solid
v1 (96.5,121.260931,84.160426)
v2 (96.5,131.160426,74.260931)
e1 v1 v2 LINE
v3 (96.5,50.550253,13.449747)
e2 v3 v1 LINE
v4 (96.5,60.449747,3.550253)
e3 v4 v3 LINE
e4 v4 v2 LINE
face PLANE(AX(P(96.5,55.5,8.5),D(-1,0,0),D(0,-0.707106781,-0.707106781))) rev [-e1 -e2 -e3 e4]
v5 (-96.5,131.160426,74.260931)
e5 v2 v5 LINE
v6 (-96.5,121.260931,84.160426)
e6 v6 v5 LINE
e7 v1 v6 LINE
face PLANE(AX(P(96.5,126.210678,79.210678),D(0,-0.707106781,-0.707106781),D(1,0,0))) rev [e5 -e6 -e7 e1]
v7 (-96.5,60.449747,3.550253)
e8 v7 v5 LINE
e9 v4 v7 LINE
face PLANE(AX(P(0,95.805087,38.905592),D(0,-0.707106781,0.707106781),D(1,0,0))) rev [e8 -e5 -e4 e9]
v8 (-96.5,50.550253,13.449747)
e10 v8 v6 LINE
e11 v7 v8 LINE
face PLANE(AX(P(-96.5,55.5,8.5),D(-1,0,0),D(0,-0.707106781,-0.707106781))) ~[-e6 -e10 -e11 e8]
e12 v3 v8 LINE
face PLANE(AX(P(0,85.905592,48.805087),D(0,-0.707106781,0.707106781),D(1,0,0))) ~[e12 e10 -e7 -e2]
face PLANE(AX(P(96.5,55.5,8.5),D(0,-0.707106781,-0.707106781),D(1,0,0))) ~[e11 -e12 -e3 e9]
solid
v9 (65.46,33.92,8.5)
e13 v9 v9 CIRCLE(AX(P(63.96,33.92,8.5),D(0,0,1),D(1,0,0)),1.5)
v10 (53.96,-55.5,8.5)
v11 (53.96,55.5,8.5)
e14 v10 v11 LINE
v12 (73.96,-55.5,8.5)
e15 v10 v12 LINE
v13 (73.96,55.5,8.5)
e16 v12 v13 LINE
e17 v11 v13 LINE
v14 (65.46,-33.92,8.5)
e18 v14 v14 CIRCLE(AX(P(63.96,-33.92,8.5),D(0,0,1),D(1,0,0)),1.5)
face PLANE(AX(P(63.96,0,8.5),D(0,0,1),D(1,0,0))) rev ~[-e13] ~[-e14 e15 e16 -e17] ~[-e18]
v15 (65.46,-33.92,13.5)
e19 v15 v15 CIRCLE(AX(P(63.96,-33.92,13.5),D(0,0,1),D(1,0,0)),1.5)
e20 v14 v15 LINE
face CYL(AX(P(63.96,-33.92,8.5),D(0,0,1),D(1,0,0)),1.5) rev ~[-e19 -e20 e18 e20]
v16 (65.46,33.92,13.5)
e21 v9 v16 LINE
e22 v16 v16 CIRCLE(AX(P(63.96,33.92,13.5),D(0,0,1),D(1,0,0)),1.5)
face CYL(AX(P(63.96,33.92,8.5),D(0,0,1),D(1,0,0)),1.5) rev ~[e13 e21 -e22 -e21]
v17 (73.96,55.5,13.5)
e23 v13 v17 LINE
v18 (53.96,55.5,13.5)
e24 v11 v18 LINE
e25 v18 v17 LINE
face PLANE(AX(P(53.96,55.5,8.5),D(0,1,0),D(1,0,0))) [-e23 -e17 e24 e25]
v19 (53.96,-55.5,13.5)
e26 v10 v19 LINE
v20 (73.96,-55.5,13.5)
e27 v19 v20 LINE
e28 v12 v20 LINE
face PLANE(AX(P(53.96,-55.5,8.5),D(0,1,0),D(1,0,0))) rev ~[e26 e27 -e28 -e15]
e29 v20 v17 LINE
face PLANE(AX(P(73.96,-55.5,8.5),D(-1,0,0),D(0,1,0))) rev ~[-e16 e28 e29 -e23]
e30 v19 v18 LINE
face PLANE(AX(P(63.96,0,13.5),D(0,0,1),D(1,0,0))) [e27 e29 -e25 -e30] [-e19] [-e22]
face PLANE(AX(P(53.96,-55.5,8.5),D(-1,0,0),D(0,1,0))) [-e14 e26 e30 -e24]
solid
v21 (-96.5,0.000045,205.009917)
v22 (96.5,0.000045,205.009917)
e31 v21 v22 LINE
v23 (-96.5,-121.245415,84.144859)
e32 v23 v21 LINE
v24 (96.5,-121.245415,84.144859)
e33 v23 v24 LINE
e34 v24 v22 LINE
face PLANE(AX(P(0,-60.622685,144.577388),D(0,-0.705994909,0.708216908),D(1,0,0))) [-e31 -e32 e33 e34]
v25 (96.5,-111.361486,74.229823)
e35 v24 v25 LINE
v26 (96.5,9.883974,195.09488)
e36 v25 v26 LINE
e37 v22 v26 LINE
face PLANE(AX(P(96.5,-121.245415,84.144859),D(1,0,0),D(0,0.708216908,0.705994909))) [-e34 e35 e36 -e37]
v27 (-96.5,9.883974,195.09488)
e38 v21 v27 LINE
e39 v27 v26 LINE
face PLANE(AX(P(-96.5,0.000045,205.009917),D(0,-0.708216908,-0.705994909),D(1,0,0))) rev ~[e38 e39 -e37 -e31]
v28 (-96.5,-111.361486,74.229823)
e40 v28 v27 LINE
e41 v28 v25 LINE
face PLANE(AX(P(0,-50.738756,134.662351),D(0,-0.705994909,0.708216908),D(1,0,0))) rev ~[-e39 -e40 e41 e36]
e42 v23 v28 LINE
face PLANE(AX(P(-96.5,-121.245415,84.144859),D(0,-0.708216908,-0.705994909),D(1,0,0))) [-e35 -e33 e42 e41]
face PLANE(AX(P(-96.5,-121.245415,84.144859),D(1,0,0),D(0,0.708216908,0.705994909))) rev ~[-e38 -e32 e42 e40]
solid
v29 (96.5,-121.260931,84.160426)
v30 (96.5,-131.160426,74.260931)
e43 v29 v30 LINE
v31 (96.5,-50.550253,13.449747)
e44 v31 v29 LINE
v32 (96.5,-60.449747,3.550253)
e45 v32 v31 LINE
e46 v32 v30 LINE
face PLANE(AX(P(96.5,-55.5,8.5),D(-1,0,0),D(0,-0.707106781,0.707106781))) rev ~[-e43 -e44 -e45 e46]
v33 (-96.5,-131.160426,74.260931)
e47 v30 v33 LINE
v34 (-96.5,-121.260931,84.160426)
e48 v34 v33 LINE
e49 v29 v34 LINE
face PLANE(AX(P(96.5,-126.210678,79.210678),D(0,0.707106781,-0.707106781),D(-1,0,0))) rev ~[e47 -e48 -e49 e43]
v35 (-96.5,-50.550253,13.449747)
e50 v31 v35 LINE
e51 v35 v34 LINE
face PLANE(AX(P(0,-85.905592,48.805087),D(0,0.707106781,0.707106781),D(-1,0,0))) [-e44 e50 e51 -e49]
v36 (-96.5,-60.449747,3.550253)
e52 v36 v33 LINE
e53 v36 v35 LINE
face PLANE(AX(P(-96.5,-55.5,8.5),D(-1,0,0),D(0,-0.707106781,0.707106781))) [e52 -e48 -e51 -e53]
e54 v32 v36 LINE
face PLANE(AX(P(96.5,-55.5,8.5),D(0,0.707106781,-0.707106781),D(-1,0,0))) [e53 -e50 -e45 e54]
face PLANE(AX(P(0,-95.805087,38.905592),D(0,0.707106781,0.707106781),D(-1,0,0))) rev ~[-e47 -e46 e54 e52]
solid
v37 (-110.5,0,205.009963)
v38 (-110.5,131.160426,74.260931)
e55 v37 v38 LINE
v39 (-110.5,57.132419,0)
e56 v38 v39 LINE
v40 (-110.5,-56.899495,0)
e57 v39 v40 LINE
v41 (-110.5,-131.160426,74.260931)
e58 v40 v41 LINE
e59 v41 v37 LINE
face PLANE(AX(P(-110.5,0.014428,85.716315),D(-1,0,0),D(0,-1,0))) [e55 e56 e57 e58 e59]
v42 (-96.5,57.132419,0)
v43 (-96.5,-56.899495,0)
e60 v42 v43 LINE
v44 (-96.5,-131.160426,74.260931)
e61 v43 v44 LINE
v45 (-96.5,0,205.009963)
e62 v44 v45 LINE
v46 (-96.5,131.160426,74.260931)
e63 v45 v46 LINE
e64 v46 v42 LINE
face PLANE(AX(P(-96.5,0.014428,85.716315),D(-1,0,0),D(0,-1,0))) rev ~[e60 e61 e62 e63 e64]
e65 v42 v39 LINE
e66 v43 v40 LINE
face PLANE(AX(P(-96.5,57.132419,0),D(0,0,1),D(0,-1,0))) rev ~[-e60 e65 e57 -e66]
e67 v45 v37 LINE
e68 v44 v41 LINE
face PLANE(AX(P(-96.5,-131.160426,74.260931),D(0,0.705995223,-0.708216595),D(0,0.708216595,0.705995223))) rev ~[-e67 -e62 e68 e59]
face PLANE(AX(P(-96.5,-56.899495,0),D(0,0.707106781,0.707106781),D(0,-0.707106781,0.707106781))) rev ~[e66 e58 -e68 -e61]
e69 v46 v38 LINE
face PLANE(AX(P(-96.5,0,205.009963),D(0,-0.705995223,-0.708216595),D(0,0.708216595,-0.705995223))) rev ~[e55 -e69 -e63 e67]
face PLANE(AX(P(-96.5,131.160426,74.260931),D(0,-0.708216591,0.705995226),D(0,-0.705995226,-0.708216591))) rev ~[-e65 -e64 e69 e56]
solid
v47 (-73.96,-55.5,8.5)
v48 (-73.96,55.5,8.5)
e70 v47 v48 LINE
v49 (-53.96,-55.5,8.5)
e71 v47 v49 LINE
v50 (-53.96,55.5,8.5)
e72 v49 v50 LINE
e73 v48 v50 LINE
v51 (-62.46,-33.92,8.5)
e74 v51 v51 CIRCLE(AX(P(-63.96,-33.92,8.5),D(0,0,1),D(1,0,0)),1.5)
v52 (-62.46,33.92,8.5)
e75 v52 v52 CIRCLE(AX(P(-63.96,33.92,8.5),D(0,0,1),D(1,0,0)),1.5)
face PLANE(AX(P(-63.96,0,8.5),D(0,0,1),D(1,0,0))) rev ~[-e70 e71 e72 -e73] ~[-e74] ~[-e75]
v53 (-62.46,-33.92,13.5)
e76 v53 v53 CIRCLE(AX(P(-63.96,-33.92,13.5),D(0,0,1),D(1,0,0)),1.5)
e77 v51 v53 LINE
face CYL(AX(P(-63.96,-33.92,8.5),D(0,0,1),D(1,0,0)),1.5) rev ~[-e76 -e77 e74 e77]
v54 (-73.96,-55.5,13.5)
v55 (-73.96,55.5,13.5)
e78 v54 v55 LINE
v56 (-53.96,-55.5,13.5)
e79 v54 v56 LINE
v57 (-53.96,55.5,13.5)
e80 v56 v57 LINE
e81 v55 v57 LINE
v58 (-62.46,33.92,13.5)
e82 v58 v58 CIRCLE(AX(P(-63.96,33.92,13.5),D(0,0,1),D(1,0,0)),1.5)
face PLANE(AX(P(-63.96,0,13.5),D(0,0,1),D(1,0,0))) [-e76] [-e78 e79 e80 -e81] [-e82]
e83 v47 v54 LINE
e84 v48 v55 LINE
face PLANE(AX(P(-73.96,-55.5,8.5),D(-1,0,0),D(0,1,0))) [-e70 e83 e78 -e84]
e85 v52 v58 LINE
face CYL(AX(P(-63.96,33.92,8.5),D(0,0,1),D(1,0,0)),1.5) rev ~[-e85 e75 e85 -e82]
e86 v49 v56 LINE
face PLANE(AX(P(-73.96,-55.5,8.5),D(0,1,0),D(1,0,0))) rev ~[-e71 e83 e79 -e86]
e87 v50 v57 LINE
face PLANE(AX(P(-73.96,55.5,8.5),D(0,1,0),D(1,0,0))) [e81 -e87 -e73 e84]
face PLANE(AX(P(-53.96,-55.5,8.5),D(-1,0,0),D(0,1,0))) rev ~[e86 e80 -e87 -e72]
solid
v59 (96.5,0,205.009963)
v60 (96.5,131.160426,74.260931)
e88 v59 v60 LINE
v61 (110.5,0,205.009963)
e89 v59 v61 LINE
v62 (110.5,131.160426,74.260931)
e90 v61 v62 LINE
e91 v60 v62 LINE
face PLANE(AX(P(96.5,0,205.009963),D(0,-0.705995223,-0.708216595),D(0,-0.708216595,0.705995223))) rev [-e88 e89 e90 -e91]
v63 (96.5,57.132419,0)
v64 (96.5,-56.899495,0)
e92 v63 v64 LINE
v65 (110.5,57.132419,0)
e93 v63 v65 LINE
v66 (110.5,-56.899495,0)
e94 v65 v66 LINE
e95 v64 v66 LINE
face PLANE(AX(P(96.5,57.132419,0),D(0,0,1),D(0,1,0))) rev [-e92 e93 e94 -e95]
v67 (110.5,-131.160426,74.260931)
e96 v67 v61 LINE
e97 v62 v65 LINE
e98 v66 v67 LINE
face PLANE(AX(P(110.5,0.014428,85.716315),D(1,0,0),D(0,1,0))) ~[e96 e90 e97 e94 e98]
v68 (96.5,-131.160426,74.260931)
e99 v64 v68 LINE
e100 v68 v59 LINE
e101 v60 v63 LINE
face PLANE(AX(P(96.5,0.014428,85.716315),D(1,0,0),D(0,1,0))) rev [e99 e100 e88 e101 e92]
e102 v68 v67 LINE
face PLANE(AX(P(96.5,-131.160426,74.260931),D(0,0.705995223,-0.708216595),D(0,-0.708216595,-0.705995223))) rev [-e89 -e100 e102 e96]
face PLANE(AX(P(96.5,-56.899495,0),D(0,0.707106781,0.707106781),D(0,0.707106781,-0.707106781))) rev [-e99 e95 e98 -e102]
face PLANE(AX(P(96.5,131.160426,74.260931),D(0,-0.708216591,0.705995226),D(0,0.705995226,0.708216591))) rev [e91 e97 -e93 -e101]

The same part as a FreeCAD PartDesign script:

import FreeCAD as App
import Part
import Sketcher
from FreeCAD import Vector
Q = App.Units.Quantity


def add_polygon(sketch, points):
    """Adds a closed chain of lines whose ends are joined by coincident constraints."""
    first, n = sketch.GeometryCount, len(points)
    for a, b in zip(points, points[1:] + points[:1]):
        sketch.addGeometry(Part.LineSegment(App.Vector(*a, 0), App.Vector(*b, 0)), False)
    for i in range(n):
        sketch.addConstraint(Sketcher.Constraint("Coincident", first + i, 2, first + (i + 1) % n, 1))

doc = App.newDocument("Part")
body = doc.addObject("PartDesign::Body", "Body")

# Sketch on XY plane
sketch1 = body.newObject("Sketcher::SketchObject", "Sketch")
sketch1.AttachmentSupport = (doc.getObject("XY_Plane"), [""])
sketch1.MapMode = "FlatFace"
add_polygon(sketch1, [(-96.5, 55.5), (-96.5, -55.5), (96.5, -55.5), (96.5, 55.5)])  # lines 0-3
sketch1.addConstraint([
    Sketcher.Constraint("Vertical", 0),
    Sketcher.Constraint("Horizontal", 1),
    Sketcher.Constraint("Vertical", 2),
    Sketcher.Constraint("Horizontal", 3),
    Sketcher.Constraint("Symmetric", 0, 2, 2, 2, -1, 1),
    Sketcher.Constraint("DistanceX", 1, 1, 1, 2, 193.0),
    Sketcher.Constraint("DistanceY", 0, 2, 0, 1, 111.0),
])
pad1 = body.newObject("PartDesign::Pad", "Pad")
pad1.Profile = sketch1
pad1.Length = 8.5
body2 = doc.addObject("PartDesign::Body", "Body001")
body2.AllowCompound = True

# Sketch on XY plane
sketch2 = body2.newObject("Sketcher::SketchObject", "Sketch001")
sketch2.AttachmentSupport = (doc.getObject("XY_Plane001"), [""])
sketch2.MapMode = "FlatFace"
sketch2.AttachmentOffset = App.Placement(Vector(0, 0, 8.5), App.Rotation())
add_polygon(sketch2, [(-73.96, 55.5), (-73.96, -55.5), (-53.96, -55.5), (-53.96, 55.5)])  # lines 0-3
add_polygon(sketch2, [(53.96, 55.5), (53.96, -55.5), (73.96, -55.5), (73.96, 55.5)])  # lines 4-7
sketch2.addConstraint([
    Sketcher.Constraint("Vertical", 0),
    Sketcher.Constraint("Horizontal", 1),
    Sketcher.Constraint("Vertical", 2),
    Sketcher.Constraint("Horizontal", 3),
    Sketcher.Constraint("Vertical", 4),
    Sketcher.Constraint("Horizontal", 5),
    Sketcher.Constraint("Vertical", 6),
    Sketcher.Constraint("Horizontal", 7),
    Sketcher.Constraint("Symmetric", 2, 2, 4, 2, -1, 1),
    Sketcher.Constraint("Symmetric", 0, 2, 6, 2, -1, 1),
    Sketcher.Constraint("Horizontal", 1, 2, 4, 2),
    Sketcher.Constraint("DistanceX", 1, 1, 1, 2, 20.0),
    Sketcher.Constraint("DistanceY", 0, 2, 0, 1, 111.0),
    Sketcher.Constraint("DistanceX", 0, 2, -1, 1, 73.96),
])
pad2 = body2.newObject("PartDesign::Pad", "Pad001")
pad2.Profile = sketch2
pad2.Length = 5
body3 = doc.addObject("PartDesign::Body", "Body002")
body3.AllowCompound = True

# Sketch on XY plane
sketch3 = body3.newObject("Sketcher::SketchObject", "Sketch002")
sketch3.AttachmentSupport = (doc.getObject("XY_Plane002"), [""])
sketch3.MapMode = "FlatFace"
sketch3.AttachmentOffset = App.Placement(Vector(0, 0, 8.5), App.Rotation())
sketch3.addGeometry([
    Part.Circle(Vector(-63.96, 33.92, 0), Vector(0, 0, 1), 1.5),
    Part.Circle(Vector(63.96, 33.92, 0), Vector(0, 0, 1), 1.5),
    Part.Circle(Vector(-63.96, -33.92, 0), Vector(0, 0, 1), 1.5),
    Part.Circle(Vector(63.96, -33.92, 0), Vector(0, 0, 1), 1.5),
], False)
sketch3.addConstraint([
    Sketcher.Constraint("Equal", 0, 1),
    Sketcher.Constraint("Equal", 1, 2),
    Sketcher.Constraint("Equal", 2, 3),
    Sketcher.Constraint("Symmetric", 1, 3, 2, 3, -1, 1),
    Sketcher.Constraint("Symmetric", 0, 3, 3, 3, -1, 1),
    Sketcher.Constraint("Symmetric", 0, 3, 1, 3, -2),
    Sketcher.Constraint("Diameter", 0, 3.0),
    Sketcher.Constraint("DistanceX", 0, 3, -1, 1, 63.96),
    Sketcher.Constraint("DistanceY", -1, 1, 0, 3, 33.92),
])
pad3 = body3.newObject("PartDesign::Pad", "Pad002")
pad3.Profile = sketch3
pad3.Type = "TwoLengths"
pad3.Length = 5.001
pad3.Length2 = 2.5
doc.recompute()

body4 = doc.addObject("PartDesign::Body", "Body003")
body4.BaseFeature = body3
boolean = body.newObject("PartDesign::Boolean", "Boolean")
boolean.Type = "Cut"
boolean.addObjects([body4])
doc.recompute()
body2.AllowCompound = True
doc.recompute()

boolean2 = body2.newObject("PartDesign::Boolean", "Boolean001")
boolean2.Type = "Cut"
boolean2.addObjects([body3])
body5 = doc.addObject("PartDesign::Body", "Body004")

# Sketch on an angled plane
sketch4 = body5.newObject("Sketcher::SketchObject", "Sketch003")
sketch4.Placement = App.Placement(Vector(0, -23.5, -23.5), App.Rotation(Vector(-1, 0, 0), Vector(0, -0.707106781, 0.707106781), Vector(0, 0.707106781, 0.707106781), "ZXY"))
add_polygon(sketch4, [(-96.5, 145.254834), (-96.5, 45.254834), (96.5, 45.254834), (96.5, 145.254834)])  # lines 0-3
sketch4.addConstraint([
    Sketcher.Constraint("Vertical", 0),
    Sketcher.Constraint("Horizontal", 1),
    Sketcher.Constraint("Vertical", 2),
    Sketcher.Constraint("Horizontal", 3),
    Sketcher.Constraint("DistanceX", 1, 1, 1, 2, 193.0),
    Sketcher.Constraint("DistanceY", 0, 2, 0, 1, 100.0),
    Sketcher.Constraint("DistanceX", 0, 2, -1, 1, 96.5),
    Sketcher.Constraint("DistanceY", -1, 1, 0, 2, 45.254834),
])
pad4 = body5.newObject("PartDesign::Pad", "Pad003")
pad4.Profile = sketch4
pad4.Length = 14
pad4.Midplane = True
body6 = doc.addObject("PartDesign::Body", "Body005")
doc.recompute()

mirroring = doc.addObject("Part::Mirroring", "Mirroring")
mirroring.Source = body5
mirroring.Base = Vector(0, 0, 0)
mirroring.Normal = Vector(0, -1, 0)
body6.BaseFeature = mirroring
doc.recompute()
body7 = doc.addObject("PartDesign::Body", "Body006")

# Sketch on YZ plane
sketch5 = body7.newObject("Sketcher::SketchObject", "Sketch004")
sketch5.AttachmentSupport = (doc.getObject("YZ_Plane006"), [""])
sketch5.MapMode = "FlatFace"
sketch5.AttachmentOffset = App.Placement(Vector(0, 0, -96.5), App.Rotation())
add_polygon(sketch5, [(-56.899495, 0), (-131.160426, 74.260931), (0, 205.009963), (131.160426, 74.260931), (57.132419, 0)])  # lines 0-4
sketch5.addConstraint([
    Sketcher.Constraint("Horizontal", 4),
    Sketcher.Constraint("Symmetric", 0, 2, 2, 2, -2),
    Sketcher.Constraint("PointOnObject", 1, 2, -2),
    Sketcher.Constraint("PointOnObject", 3, 2, -1),
    Sketcher.Constraint("Perpendicular", 2, 3),
    Sketcher.Constraint("Angle", 0, Q("135 deg")),
    Sketcher.Constraint("Angle", 1, Q("44.910003 deg")),
    Sketcher.Constraint("DistanceX", 4, 2, 4, 1, 114.031914),
    Sketcher.Constraint("DistanceY", -1, 1, 0, 2, 74.260931),
])
pad5 = body7.newObject("PartDesign::Pad", "Pad004")
pad5.Profile = sketch5
pad5.Length = 14
pad5.Reversed = True
body8 = doc.addObject("PartDesign::Body", "Body007")
doc.recompute()

mirroring2 = doc.addObject("Part::Mirroring", "Mirroring001")
mirroring2.Source = body7
mirroring2.Base = Vector(0, 0, 0)
mirroring2.Normal = Vector(1, 0, 0)
body8.BaseFeature = mirroring2
doc.recompute()
body9 = doc.addObject("PartDesign::Body", "Body008")

# Sketch on an angled plane
sketch6 = body9.newObject("Sketcher::SketchObject", "Sketch005")
sketch6.Placement = App.Placement(Vector(0, -102.504476, 102.826999), App.Rotation(Vector(1, 0, 0), Vector(0, 0.708216908, 0.705994909), Vector(0, -0.705994909, 0.708216908), "ZXY"))
add_polygon(sketch6, [(-96.5, 144.736055), (-96.5, -26.462145), (96.5, -26.462145), (96.5, 144.736055)])  # lines 0-3
sketch6.addConstraint([
    Sketcher.Constraint("Vertical", 0),
    Sketcher.Constraint("Horizontal", 1),
    Sketcher.Constraint("Vertical", 2),
    Sketcher.Constraint("Horizontal", 3),
    Sketcher.Constraint("DistanceX", 1, 1, 1, 2, 193.0),
    Sketcher.Constraint("DistanceX", 0, 2, -1, 1, 96.5),
    Sketcher.Constraint("DistanceY", 0, 2, 0, 1, 171.1982),
    Sketcher.Constraint("DistanceY", 0, 2, -1, 1, 26.462145),
])
pad6 = body9.newObject("PartDesign::Pad", "Pad005")
pad6.Profile = sketch6
pad6.Length = 14
pad6.Reversed = True
body.Visibility = False
mirroring.Visibility = False
mirroring2.Visibility = False

doc.recompute()
